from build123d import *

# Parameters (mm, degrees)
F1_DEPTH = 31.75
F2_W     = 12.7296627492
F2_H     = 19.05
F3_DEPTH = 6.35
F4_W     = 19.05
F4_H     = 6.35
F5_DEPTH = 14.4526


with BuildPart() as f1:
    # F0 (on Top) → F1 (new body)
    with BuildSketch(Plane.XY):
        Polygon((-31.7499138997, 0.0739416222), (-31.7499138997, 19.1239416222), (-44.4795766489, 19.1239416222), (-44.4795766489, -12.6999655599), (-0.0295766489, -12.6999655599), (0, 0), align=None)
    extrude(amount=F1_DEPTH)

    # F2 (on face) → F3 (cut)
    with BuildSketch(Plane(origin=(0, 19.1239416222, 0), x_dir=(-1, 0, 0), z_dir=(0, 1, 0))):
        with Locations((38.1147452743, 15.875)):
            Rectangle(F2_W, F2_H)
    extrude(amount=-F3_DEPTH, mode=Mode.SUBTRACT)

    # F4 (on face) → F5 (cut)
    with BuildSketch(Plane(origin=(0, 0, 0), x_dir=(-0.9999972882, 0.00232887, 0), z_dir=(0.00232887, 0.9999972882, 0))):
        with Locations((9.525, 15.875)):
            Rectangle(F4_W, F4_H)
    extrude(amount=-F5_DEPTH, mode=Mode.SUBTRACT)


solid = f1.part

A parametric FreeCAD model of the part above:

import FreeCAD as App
import Part
import Sketcher
Q = App.Units.Quantity


def add_polygon(sketch, points):
    """Adds a closed chain of lines whose ends are joined by coincident constraints."""
    first, n = sketch.GeometryCount, len(points)
    for a, b in zip(points, points[1:] + points[:1]):
        sketch.addGeometry(Part.LineSegment(App.Vector(*a, 0), App.Vector(*b, 0)), False)
    for i in range(n):
        sketch.addConstraint(Sketcher.Constraint("Coincident", first + i, 2, first + (i + 1) % n, 1))

doc = App.newDocument("Part")
body = doc.addObject("PartDesign::Body", "Body")

# Sketch on XY plane
sketch1 = doc.addObject("Sketcher::SketchObject", "Sketch")
body.addObject(sketch1)
sketch1.AttachmentSupport = (doc.XY_Plane, [""])
sketch1.MapMode = "FlatFace"
add_polygon(sketch1, [(-32, 0), (-32, 19), (-44, 19), (-44, -13), (0, -13), (0, 0)])  # lines 0-5
sketch1.addConstraint(Sketcher.Constraint("Vertical", 0))
sketch1.addConstraint(Sketcher.Constraint("Horizontal", 1))
sketch1.addConstraint(Sketcher.Constraint("Vertical", 2))
sketch1.addConstraint(Sketcher.Constraint("Horizontal", 3))
sketch1.addConstraint(Sketcher.Constraint("Coincident", 4, 2, -1, 1))
sketch1.addConstraint(Sketcher.Constraint("Perpendicular", 4, 5))
sketch1.addConstraint(Sketcher.Constraint("Distance", 4, Q("0.5 in")))
sketch1.addConstraint(Sketcher.Constraint("DistanceX", 3, 1, 3, 2, Q("1.75 in")))
sketch1.addConstraint(Sketcher.Constraint("DistanceY", 0, 1, 0, 2, Q("0.75 in")))
sketch1.addConstraint(Sketcher.Constraint("Distance", 5, Q("1.25 in")))
sketch1.addConstraint(Sketcher.Constraint("DistanceX", 1, 2, 1, 1, Q("12.729663 mm")))
pad1 = doc.addObject("PartDesign::Pad", "Pad")
body.addObject(pad1)
pad1.Profile = sketch1
pad1.Length = Q("1.25 in")

# Sketch on XZ plane
sketch2 = doc.addObject("Sketcher::SketchObject", "Sketch001")
body.addObject(sketch2)
sketch2.AttachmentSupport = (doc.XZ_Plane, [""])
sketch2.MapMode = "FlatFace"
sketch2.AttachmentOffset = App.Placement(App.Vector(0, 0, -19.123942), App.Rotation())
add_polygon(sketch2, [(-32, 25), (-32, 6), (-44, 6), (-44, 25)])  # lines 0-3
sketch2.addConstraint(Sketcher.Constraint("Vertical", 0))
sketch2.addConstraint(Sketcher.Constraint("Horizontal", 1))
sketch2.addConstraint(Sketcher.Constraint("Vertical", 2))
sketch2.addConstraint(Sketcher.Constraint("Horizontal", 3))
sketch2.addConstraint(Sketcher.Constraint("DistanceY", -1, 1, 2, 2, Q("1 in")))
sketch2.addConstraint(Sketcher.Constraint("DistanceY", 0, 2, 0, 1, Q("0.75 in")))
sketch2.addConstraint(Sketcher.Constraint("DistanceX", 1, 2, 1, 1, Q("12.729663 mm")))
sketch2.addConstraint(Sketcher.Constraint("DistanceX", 0, 2, -1, 1, Q("31.749914 mm")))
pocket1 = doc.addObject("PartDesign::Pocket", "Pocket")
body.addObject(pocket1)
pocket1.Profile = sketch2
pocket1.Length = Q("0.25 in")
pocket1.Reversed = True

# Sketch on an angled plane
sketch3 = doc.addObject("Sketcher::SketchObject", "Sketch002")
body.addObject(sketch3)
sketch3.Placement = App.Placement(App.Vector(0, 0, 0), App.Rotation(App.Vector(-0.999997288, 0.00232887, 0), App.Vector(0, 0, 1), App.Vector(0.00232887, 0.999997288, 0), "ZXY"))
add_polygon(sketch3, [(0, 19), (0, 13), (19, 13), (19, 19)])  # lines 0-3
sketch3.addConstraint(Sketcher.Constraint("Vertical", 0))
sketch3.addConstraint(Sketcher.Constraint("Horizontal", 1))
sketch3.addConstraint(Sketcher.Constraint("Vertical", 2))
sketch3.addConstraint(Sketcher.Constraint("Horizontal", 3))
sketch3.addConstraint(Sketcher.Constraint("PointOnObject", 0, 2, -2))
sketch3.addConstraint(Sketcher.Constraint("DistanceX", 1, 1, 1, 2, Q("0.75 in")))
sketch3.addConstraint(Sketcher.Constraint("DistanceY", 0, 2, 0, 1, Q("0.25 in")))
sketch3.addConstraint(Sketcher.Constraint("DistanceY", -1, 1, 0, 2, Q("0.5 in")))
pocket2 = doc.addObject("PartDesign::Pocket", "Pocket001")
body.addObject(pocket2)
pocket2.Profile = sketch3
pocket2.Length = Q("0.569 in")

doc.recompute()
